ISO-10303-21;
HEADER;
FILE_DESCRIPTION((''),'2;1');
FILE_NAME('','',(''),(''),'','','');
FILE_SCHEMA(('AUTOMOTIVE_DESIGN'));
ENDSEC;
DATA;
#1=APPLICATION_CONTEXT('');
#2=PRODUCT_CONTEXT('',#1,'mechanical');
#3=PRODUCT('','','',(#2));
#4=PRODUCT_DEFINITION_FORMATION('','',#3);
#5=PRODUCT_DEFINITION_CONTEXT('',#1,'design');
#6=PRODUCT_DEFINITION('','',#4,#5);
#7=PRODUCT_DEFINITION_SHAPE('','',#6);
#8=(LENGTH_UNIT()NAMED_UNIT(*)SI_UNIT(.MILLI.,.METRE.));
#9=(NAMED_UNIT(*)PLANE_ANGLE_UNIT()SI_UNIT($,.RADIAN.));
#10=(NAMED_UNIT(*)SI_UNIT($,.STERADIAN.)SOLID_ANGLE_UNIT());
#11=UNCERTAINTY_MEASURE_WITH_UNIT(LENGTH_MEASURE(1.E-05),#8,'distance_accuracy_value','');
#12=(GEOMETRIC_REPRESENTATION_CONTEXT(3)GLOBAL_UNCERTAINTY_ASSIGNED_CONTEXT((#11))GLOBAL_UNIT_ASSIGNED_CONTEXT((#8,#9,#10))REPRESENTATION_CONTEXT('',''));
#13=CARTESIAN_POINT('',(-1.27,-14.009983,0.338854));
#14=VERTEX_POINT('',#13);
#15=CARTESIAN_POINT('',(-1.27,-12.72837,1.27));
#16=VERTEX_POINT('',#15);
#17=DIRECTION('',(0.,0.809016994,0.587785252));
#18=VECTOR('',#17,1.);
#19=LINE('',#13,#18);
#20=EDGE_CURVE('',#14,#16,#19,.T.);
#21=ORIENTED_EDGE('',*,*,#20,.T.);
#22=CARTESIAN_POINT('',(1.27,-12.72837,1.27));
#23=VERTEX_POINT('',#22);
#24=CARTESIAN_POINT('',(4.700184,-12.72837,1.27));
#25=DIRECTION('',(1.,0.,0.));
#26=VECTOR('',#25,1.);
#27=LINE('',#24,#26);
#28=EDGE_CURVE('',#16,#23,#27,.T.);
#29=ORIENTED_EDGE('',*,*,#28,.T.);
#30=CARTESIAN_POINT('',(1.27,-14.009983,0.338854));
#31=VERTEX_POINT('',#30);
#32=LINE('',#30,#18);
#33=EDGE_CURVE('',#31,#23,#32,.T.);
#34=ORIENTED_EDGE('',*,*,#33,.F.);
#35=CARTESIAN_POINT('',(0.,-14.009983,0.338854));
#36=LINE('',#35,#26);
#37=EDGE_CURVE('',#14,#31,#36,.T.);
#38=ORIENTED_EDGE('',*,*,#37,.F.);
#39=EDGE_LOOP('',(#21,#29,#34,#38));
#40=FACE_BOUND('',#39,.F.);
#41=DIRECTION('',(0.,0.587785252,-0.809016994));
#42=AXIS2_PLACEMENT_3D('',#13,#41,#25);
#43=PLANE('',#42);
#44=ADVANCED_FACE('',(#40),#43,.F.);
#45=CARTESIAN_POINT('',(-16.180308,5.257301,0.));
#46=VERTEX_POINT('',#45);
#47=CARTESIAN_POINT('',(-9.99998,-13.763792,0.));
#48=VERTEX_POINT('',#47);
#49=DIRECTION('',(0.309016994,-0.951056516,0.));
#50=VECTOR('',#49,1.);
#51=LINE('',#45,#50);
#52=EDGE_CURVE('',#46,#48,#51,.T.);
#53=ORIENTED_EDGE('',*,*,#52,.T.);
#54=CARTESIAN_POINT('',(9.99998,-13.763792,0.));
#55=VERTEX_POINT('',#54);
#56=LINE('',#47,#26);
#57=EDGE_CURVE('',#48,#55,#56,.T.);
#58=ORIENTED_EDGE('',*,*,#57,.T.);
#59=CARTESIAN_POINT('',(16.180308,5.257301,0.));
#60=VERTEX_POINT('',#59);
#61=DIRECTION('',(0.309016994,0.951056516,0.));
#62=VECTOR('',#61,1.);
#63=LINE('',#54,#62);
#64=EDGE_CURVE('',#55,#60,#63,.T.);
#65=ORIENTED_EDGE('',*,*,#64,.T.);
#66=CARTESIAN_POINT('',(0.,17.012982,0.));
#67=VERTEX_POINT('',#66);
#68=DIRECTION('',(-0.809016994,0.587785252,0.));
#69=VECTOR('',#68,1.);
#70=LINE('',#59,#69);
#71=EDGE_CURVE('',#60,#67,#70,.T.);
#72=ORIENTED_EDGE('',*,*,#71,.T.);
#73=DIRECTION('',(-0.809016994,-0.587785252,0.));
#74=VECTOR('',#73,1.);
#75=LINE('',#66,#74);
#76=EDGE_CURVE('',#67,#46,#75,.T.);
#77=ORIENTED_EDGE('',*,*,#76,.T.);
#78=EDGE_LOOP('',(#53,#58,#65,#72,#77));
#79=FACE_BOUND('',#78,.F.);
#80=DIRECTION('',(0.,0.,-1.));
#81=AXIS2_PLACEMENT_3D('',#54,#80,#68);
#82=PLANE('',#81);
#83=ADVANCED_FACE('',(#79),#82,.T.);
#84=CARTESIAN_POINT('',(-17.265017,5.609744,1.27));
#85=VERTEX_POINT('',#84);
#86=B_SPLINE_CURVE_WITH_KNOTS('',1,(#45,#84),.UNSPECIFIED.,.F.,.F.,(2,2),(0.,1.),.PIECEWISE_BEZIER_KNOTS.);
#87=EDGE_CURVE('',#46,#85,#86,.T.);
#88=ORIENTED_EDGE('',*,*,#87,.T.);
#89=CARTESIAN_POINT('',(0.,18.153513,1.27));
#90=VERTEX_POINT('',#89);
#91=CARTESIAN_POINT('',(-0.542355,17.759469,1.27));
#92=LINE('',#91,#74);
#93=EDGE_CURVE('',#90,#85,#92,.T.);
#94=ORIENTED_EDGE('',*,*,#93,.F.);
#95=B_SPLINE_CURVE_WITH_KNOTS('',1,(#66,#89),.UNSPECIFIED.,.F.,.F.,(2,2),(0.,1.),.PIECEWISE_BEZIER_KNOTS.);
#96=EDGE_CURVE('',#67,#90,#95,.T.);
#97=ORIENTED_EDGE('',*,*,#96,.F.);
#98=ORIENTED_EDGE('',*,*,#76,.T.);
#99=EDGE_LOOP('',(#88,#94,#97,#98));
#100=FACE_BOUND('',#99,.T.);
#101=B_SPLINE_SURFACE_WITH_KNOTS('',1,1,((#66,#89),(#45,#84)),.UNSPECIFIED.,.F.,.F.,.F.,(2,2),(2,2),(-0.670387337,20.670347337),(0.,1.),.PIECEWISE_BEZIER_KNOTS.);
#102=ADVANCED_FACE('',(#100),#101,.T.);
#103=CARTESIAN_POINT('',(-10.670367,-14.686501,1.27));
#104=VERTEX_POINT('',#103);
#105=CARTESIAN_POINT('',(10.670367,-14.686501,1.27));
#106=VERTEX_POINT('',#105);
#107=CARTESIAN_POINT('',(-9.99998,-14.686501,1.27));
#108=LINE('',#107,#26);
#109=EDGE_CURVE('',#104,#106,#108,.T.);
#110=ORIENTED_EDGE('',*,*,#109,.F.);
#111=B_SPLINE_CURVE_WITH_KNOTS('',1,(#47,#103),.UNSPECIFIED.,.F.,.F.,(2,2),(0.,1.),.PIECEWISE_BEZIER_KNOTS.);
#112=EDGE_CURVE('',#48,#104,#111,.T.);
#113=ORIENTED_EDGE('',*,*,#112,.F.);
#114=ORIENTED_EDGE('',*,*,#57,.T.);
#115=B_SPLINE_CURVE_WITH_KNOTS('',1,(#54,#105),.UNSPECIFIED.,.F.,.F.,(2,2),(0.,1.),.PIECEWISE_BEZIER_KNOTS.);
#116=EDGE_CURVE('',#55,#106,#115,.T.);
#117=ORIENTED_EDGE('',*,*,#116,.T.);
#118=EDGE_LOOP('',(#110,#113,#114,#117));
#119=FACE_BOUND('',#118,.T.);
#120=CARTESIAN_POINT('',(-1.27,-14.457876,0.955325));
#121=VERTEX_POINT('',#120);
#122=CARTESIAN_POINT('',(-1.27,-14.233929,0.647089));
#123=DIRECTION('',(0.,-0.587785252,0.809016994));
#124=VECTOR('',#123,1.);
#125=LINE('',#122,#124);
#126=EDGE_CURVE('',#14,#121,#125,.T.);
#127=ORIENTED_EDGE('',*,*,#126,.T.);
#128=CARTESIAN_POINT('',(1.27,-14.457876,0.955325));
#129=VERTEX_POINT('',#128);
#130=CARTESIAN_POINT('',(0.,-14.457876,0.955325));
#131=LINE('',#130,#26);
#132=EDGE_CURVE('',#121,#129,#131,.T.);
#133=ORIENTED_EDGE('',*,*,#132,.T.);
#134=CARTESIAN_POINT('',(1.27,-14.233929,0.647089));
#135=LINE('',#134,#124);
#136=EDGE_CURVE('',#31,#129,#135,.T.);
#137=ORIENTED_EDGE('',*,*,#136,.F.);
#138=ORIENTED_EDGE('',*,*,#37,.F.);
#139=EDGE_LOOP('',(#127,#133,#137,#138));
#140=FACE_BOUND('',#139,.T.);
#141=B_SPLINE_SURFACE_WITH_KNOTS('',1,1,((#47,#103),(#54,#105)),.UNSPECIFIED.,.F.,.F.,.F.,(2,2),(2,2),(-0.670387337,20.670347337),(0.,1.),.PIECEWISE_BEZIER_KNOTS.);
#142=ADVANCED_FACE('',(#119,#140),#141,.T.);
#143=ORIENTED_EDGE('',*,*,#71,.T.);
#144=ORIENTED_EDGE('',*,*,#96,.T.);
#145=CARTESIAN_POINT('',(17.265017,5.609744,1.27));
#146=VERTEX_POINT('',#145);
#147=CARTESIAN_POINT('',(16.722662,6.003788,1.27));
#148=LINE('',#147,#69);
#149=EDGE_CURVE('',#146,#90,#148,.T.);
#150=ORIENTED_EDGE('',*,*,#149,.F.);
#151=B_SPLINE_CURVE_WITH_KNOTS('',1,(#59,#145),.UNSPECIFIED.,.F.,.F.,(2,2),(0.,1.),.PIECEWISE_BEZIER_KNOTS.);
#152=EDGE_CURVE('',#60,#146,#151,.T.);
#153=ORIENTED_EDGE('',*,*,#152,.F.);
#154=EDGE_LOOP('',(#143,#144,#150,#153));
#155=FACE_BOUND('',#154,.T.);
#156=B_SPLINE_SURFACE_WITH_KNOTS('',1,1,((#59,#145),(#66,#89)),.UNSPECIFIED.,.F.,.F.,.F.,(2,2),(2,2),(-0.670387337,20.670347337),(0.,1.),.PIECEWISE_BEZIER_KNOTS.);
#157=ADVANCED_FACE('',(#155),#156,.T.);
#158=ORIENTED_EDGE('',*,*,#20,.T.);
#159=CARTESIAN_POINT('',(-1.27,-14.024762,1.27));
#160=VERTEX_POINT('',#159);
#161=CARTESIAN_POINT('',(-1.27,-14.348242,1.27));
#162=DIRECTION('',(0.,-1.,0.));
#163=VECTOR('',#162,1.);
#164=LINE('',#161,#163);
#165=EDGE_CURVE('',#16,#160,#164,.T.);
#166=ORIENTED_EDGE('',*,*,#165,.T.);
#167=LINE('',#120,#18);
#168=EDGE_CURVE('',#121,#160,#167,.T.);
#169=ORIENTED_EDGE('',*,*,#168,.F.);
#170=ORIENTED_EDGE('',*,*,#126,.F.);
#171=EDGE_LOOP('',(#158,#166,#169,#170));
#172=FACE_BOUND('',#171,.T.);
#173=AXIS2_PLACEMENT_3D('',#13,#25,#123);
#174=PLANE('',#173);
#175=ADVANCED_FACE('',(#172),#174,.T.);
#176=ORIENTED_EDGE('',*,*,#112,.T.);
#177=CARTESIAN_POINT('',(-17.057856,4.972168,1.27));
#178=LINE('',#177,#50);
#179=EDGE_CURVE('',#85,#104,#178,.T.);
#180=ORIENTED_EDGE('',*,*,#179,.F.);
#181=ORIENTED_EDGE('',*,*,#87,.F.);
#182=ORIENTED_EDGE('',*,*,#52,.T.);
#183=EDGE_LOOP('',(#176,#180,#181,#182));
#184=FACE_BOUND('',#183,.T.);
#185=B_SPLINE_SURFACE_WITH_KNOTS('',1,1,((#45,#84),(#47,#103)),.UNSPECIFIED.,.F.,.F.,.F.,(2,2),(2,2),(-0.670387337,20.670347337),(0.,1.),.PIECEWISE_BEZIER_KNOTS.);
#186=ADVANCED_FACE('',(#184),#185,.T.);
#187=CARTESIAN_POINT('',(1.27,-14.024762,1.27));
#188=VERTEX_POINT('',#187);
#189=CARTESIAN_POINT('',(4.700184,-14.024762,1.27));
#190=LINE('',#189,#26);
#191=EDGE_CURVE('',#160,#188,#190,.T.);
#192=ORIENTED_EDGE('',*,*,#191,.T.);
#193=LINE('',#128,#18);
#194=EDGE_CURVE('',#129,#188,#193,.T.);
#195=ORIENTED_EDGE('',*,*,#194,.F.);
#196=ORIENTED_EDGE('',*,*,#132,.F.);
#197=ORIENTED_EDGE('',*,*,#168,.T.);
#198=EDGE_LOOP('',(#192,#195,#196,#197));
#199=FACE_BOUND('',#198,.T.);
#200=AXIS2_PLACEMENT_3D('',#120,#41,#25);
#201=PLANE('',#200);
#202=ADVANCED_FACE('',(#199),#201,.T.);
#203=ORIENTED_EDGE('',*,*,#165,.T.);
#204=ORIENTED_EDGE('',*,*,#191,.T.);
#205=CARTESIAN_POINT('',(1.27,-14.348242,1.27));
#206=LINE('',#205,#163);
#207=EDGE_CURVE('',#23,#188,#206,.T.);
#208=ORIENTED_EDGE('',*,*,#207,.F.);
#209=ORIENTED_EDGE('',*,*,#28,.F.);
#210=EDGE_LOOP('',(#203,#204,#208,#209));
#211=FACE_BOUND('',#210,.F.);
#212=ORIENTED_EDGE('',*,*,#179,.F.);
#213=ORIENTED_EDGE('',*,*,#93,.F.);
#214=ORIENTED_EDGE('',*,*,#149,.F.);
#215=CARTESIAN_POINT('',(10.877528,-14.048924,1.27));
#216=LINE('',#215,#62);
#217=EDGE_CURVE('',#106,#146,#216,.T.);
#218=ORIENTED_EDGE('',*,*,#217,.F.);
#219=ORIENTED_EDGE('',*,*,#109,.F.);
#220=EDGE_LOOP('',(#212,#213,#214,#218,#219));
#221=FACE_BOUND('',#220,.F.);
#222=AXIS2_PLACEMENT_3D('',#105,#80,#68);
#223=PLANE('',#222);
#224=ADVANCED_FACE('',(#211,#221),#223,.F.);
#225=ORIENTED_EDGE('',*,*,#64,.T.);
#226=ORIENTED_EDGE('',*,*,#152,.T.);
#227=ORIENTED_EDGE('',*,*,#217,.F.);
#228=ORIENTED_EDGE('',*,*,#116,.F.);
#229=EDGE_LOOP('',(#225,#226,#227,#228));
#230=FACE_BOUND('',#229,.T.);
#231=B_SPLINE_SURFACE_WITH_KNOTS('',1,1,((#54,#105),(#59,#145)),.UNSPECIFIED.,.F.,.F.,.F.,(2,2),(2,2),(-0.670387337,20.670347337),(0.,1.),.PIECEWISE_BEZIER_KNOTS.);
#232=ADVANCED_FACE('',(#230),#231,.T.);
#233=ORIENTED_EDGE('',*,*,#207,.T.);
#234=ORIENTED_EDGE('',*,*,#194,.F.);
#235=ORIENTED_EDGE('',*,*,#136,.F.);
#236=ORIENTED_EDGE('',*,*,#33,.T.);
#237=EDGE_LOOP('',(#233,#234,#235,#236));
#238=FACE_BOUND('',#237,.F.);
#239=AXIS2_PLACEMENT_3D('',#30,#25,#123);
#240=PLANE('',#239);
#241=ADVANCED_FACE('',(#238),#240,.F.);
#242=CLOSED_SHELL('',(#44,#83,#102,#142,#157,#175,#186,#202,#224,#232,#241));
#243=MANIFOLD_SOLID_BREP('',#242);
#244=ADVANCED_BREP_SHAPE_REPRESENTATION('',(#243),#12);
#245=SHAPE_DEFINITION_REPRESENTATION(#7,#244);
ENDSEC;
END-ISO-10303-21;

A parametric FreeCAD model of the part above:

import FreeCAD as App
import Part
import Sketcher

V = App.Vector
Q = App.Units.Quantity


def add_polygon(sketch, points):
    """Adds a closed chain of lines whose ends are joined by coincident constraints."""
    first, n = sketch.GeometryCount, len(points)
    for a, b in zip(points, points[1:] + points[:1]):
        sketch.addGeometry(Part.LineSegment(App.Vector(*a, 0), App.Vector(*b, 0)), False)
    for i in range(n):
        sketch.addConstraint(Sketcher.Constraint("Coincident", first + i, 2, first + (i + 1) % n, 1))

doc = App.newDocument("Part")
params = doc.addObject("Spreadsheet::Sheet", "Params")
for row, (alias, value) in enumerate([
    ("pad1_length", "0.05 in"),
    ("pad1_taper", "36 deg"),
    ("sketch2_width", "0.1 in"),
    ("sketch2_height", "0.03 in"),
    ("pocket1_length", "1 in"),
], start=1):
    params.set(f"A{row}", alias)
    params.set(f"B{row}", "=" + value)
    params.setAlias(f"B{row}", alias)

body = doc.addObject("PartDesign::Body", "Body")

# Sketch on XY plane
sketch1 = doc.addObject("Sketcher::SketchObject", "Sketch")
body.addObject(sketch1)
sketch1.AttachmentSupport = (doc.XY_Plane, [""])
sketch1.MapMode = "FlatFace"
add_polygon(sketch1, [(10, -14), (16, 5), (0, 17), (-16, 5), (-10, -14)])  # lines 0-4
sketch1.addConstraint([
    Sketcher.Constraint("Horizontal", 4),
    Sketcher.Constraint("Symmetric", 0, 2, 2, 2, -2),
    Sketcher.Constraint("PointOnObject", 1, 2, -2),
    Sketcher.Constraint("Equal", 0, 1),
    Sketcher.Constraint("Equal", 2, 3),
    Sketcher.Constraint("Angle", 0, Q("72 deg")),
    Sketcher.Constraint("Angle", 1, Q("144 deg")),
    Sketcher.Constraint("DistanceX", 4, 1, 4, 2, Q("0.7874 in")),
    Sketcher.Constraint("DistanceY", -1, 1, 0, 2, Q("5.257301 mm")),
])
pad1 = doc.addObject("PartDesign::Pad", "Pad")
body.addObject(pad1)
pad1.Profile = sketch1
pad1.setExpression("Length", "Params.pad1_length")
pad1.setExpression("TaperAngle", "Params.pad1_taper")

# Sketch on an angled plane
sketch2 = doc.addObject("Sketcher::SketchObject", "Sketch001")
body.addObject(sketch2)
sketch2.Placement = App.Placement(V(0, -9.008519, -6.545072), App.Rotation(V(1, 0, 0), V(0, -0.587785252, 0.809016994), V(0, -0.809016994, -0.587785252), "ZXY"))
add_polygon(sketch2, [(-1.3, 9.3), (-1.3, 8.5), (1.3, 8.5), (1.3, 9.3)])  # lines 0-3
sketch2.addConstraint([
    Sketcher.Constraint("Vertical", 0),
    Sketcher.Constraint("Horizontal", 1),
    Sketcher.Constraint("Vertical", 2),
    Sketcher.Constraint("Horizontal", 3),
    Sketcher.Constraint("DistanceX", 1, 1, 1, 2, Q("0.1 in")),
    Sketcher.Constraint("DistanceY", 0, 2, 0, 1, Q("0.03 in")),
    Sketcher.Constraint("DistanceX", 0, 2, -1, 1, Q("0.05 in")),
    Sketcher.Constraint("DistanceY", -1, 1, 0, 2, Q("0.335 in")),
])
sketch2.setExpression("Constraints[8]", "Params.sketch2_width")
sketch2.setExpression("Constraints[9]", "Params.sketch2_height")
pocket1 = doc.addObject("PartDesign::Pocket", "Pocket")
body.addObject(pocket1)
pocket1.Profile = sketch2
pocket1.setExpression("Length", "Params.pocket1_length")

doc.recompute()
